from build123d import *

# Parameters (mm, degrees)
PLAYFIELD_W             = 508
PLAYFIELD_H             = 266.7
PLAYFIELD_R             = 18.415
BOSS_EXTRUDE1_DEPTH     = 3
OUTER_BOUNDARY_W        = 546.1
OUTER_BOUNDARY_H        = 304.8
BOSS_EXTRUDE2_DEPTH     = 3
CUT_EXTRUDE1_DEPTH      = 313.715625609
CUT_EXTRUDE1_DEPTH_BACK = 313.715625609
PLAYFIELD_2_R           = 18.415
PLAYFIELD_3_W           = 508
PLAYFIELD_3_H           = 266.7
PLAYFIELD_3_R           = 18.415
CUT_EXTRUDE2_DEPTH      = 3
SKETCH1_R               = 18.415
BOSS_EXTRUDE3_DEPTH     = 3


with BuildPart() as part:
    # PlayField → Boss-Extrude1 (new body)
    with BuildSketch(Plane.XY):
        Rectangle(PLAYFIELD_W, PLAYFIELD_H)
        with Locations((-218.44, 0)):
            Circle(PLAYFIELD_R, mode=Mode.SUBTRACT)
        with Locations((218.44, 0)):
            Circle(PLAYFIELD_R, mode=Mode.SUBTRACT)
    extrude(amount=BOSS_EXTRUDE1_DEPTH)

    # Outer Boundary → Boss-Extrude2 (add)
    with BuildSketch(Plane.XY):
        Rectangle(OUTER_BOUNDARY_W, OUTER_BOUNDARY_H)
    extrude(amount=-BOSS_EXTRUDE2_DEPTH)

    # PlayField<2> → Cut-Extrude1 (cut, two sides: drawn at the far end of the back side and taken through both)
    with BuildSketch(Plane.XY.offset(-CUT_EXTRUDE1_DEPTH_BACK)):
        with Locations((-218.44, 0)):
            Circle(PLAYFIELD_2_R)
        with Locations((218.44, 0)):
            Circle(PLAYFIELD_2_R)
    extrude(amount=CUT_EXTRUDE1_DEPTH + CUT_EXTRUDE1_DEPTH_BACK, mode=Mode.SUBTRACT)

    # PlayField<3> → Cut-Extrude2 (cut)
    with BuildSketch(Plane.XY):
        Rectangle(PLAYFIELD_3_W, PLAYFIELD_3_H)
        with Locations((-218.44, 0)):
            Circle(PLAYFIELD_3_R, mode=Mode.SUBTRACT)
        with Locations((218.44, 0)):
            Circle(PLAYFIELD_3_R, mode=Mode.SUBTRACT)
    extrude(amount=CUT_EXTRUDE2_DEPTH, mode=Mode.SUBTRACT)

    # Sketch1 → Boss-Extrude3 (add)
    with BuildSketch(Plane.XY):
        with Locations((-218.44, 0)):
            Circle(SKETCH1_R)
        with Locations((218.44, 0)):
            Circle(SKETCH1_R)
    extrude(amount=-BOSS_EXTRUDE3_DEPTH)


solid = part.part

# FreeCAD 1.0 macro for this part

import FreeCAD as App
import Part
import Sketcher
Q = App.Units.Quantity

doc = App.newDocument("Part")
params = doc.addObject("Spreadsheet::Sheet", "Params")
for row, (alias, value) in enumerate([
    ("sketch1_diameter", "1.45 in"),
    ("sketch1_width", "20 in"),
    ("sketch1_height", "10.5 in"),
    ("pad1_length", "3 mm"),
    ("sketch2_height", "12 in"),
    ("sketch2_width", "21.5 in"),
    ("pad2_length", "3 mm"),
    ("sketch3_diameter", "1.45 in"),
    ("sketch4_diameter", "1.45 in"),
    ("sketch4_width", "20 in"),
    ("sketch4_height", "10.5 in"),
    ("pocket2_length", "3 mm"),
    ("sketch5_diameter", "1.45 in"),
    ("pad3_length", "3 mm"),
], start=1):
    params.set(f"A{row}", alias)
    params.set(f"B{row}", "=" + value)
    params.setAlias(f"B{row}", alias)

body = doc.addObject("PartDesign::Body", "Body")

# Sketch on XY plane
sketch1 = body.newObject("Sketcher::SketchObject", "Sketch")
sketch1.AttachmentSupport = (doc.getObject("XY_Plane"), [""])
sketch1.MapMode = "FlatFace"
sketch1.addGeometry(Part.LineSegment(App.Vector(-254, 133, 0), App.Vector(-254, -133, 0)), False)
sketch1.addGeometry(Part.LineSegment(App.Vector(-254, -133, 0), App.Vector(254, -133, 0)), False)
sketch1.addGeometry(Part.LineSegment(App.Vector(254, -133, 0), App.Vector(254, 133, 0)), False)
sketch1.addGeometry(Part.LineSegment(App.Vector(254, 133, 0), App.Vector(-254, 133, 0)), False)
sketch1.addGeometry(Part.Circle(App.Vector(-218, 0, 0), App.Vector(0, 0, 1), 18), False)
sketch1.addGeometry(Part.Circle(App.Vector(218, 0, 0), App.Vector(0, 0, 1), 18), False)
sketch1.addConstraint(Sketcher.Constraint("Coincident", 0, 2, 1, 1))
sketch1.addConstraint(Sketcher.Constraint("Coincident", 1, 2, 2, 1))
sketch1.addConstraint(Sketcher.Constraint("Coincident", 2, 2, 3, 1))
sketch1.addConstraint(Sketcher.Constraint("Coincident", 3, 2, 0, 1))
sketch1.addConstraint(Sketcher.Constraint("Vertical", 0))
sketch1.addConstraint(Sketcher.Constraint("Horizontal", 1))
sketch1.addConstraint(Sketcher.Constraint("Vertical", 2))
sketch1.addConstraint(Sketcher.Constraint("Horizontal", 3))
sketch1.addConstraint(Sketcher.Constraint("Equal", 4, 5))
sketch1.addConstraint(Sketcher.Constraint("Symmetric", 4, 3, 5, 3, -1, 1))
sketch1.addConstraint(Sketcher.Constraint("Symmetric", 0, 2, 2, 2, -1, 1))
sketch1.addConstraint(Sketcher.Constraint("PointOnObject", 4, 3, -1))
sketch1.addConstraint(Sketcher.Constraint("Diameter", 4, Q("1.45 in")))
sketch1.addConstraint(Sketcher.Constraint("DistanceX", 1, 1, 1, 2, Q("20 in")))
sketch1.addConstraint(Sketcher.Constraint("DistanceY", 0, 2, 0, 1, Q("10.5 in")))
sketch1.addConstraint(Sketcher.Constraint("DistanceX", 4, 3, -1, 1, Q("8.6 in")))
sketch1.setExpression("Constraints[12]", "Params.sketch1_diameter")
sketch1.setExpression("Constraints[13]", "Params.sketch1_width")
sketch1.setExpression("Constraints[14]", "Params.sketch1_height")
pad1 = body.newObject("PartDesign::Pad", "Pad")
pad1.Profile = sketch1
pad1.setExpression("Length", "Params.pad1_length")

# Sketch on XY plane
sketch2 = body.newObject("Sketcher::SketchObject", "Sketch001")
sketch2.AttachmentSupport = (doc.getObject("XY_Plane"), [""])
sketch2.MapMode = "FlatFace"
sketch2.addGeometry(Part.LineSegment(App.Vector(-273, 152, 0), App.Vector(-273, -152, 0)), False)
sketch2.addGeometry(Part.LineSegment(App.Vector(-273, -152, 0), App.Vector(273, -152, 0)), False)
sketch2.addGeometry(Part.LineSegment(App.Vector(273, -152, 0), App.Vector(273, 152, 0)), False)
sketch2.addGeometry(Part.LineSegment(App.Vector(273, 152, 0), App.Vector(-273, 152, 0)), False)
sketch2.addConstraint(Sketcher.Constraint("Coincident", 0, 2, 1, 1))
sketch2.addConstraint(Sketcher.Constraint("Coincident", 1, 2, 2, 1))
sketch2.addConstraint(Sketcher.Constraint("Coincident", 2, 2, 3, 1))
sketch2.addConstraint(Sketcher.Constraint("Coincident", 3, 2, 0, 1))
sketch2.addConstraint(Sketcher.Constraint("Vertical", 0))
sketch2.addConstraint(Sketcher.Constraint("Horizontal", 1))
sketch2.addConstraint(Sketcher.Constraint("Vertical", 2))
sketch2.addConstraint(Sketcher.Constraint("Horizontal", 3))
sketch2.addConstraint(Sketcher.Constraint("Symmetric", 0, 2, 2, 2, -1, 1))
sketch2.addConstraint(Sketcher.Constraint("DistanceY", 0, 2, 0, 1, Q("12 in")))
sketch2.addConstraint(Sketcher.Constraint("DistanceX", 1, 1, 1, 2, Q("21.5 in")))
sketch2.setExpression("Constraints[9]", "Params.sketch2_height")
sketch2.setExpression("Constraints[10]", "Params.sketch2_width")
pad2 = body.newObject("PartDesign::Pad", "Pad001")
pad2.Profile = sketch2
pad2.setExpression("Length", "Params.pad2_length")
pad2.Reversed = True

# Sketch on XY plane
sketch3 = body.newObject("Sketcher::SketchObject", "Sketch002")
sketch3.AttachmentSupport = (doc.getObject("XY_Plane"), [""])
sketch3.MapMode = "FlatFace"
sketch3.addGeometry(Part.Circle(App.Vector(-218, 0, 0), App.Vector(0, 0, 1), 18), False)
sketch3.addGeometry(Part.Circle(App.Vector(218, 0, 0), App.Vector(0, 0, 1), 18), False)
sketch3.addConstraint(Sketcher.Constraint("Equal", 0, 1))
sketch3.addConstraint(Sketcher.Constraint("Symmetric", 0, 3, 1, 3, -1, 1))
sketch3.addConstraint(Sketcher.Constraint("PointOnObject", 0, 3, -1))
sketch3.addConstraint(Sketcher.Constraint("Diameter", 0, Q("1.45 in")))
sketch3.addConstraint(Sketcher.Constraint("DistanceX", 0, 3, -1, 1, Q("8.6 in")))
sketch3.setExpression("Constraints[3]", "Params.sketch3_diameter")
pocket1 = body.newObject("PartDesign::Pocket", "Pocket")
pocket1.Profile = sketch3
pocket1.Type = "ThroughAll"
pocket1.Midplane = True

# Sketch on XY plane
sketch4 = body.newObject("Sketcher::SketchObject", "Sketch003")
sketch4.AttachmentSupport = (doc.getObject("XY_Plane"), [""])
sketch4.MapMode = "FlatFace"
sketch4.addGeometry(Part.LineSegment(App.Vector(-254, 133, 0), App.Vector(-254, -133, 0)), False)
sketch4.addGeometry(Part.LineSegment(App.Vector(-254, -133, 0), App.Vector(254, -133, 0)), False)
sketch4.addGeometry(Part.LineSegment(App.Vector(254, -133, 0), App.Vector(254, 133, 0)), False)
sketch4.addGeometry(Part.LineSegment(App.Vector(254, 133, 0), App.Vector(-254, 133, 0)), False)
sketch4.addGeometry(Part.Circle(App.Vector(-218, 0, 0), App.Vector(0, 0, 1), 18), False)
sketch4.addGeometry(Part.Circle(App.Vector(218, 0, 0), App.Vector(0, 0, 1), 18), False)
sketch4.addConstraint(Sketcher.Constraint("Coincident", 0, 2, 1, 1))
sketch4.addConstraint(Sketcher.Constraint("Coincident", 1, 2, 2, 1))
sketch4.addConstraint(Sketcher.Constraint("Coincident", 2, 2, 3, 1))
sketch4.addConstraint(Sketcher.Constraint("Coincident", 3, 2, 0, 1))
sketch4.addConstraint(Sketcher.Constraint("Vertical", 0))
sketch4.addConstraint(Sketcher.Constraint("Horizontal", 1))
sketch4.addConstraint(Sketcher.Constraint("Vertical", 2))
sketch4.addConstraint(Sketcher.Constraint("Horizontal", 3))
sketch4.addConstraint(Sketcher.Constraint("Equal", 4, 5))
sketch4.addConstraint(Sketcher.Constraint("Symmetric", 4, 3, 5, 3, -1, 1))
sketch4.addConstraint(Sketcher.Constraint("Symmetric", 0, 2, 2, 2, -1, 1))
sketch4.addConstraint(Sketcher.Constraint("PointOnObject", 4, 3, -1))
sketch4.addConstraint(Sketcher.Constraint("Diameter", 4, Q("1.45 in")))
sketch4.addConstraint(Sketcher.Constraint("DistanceX", 1, 1, 1, 2, Q("20 in")))
sketch4.addConstraint(Sketcher.Constraint("DistanceY", 0, 2, 0, 1, Q("10.5 in")))
sketch4.addConstraint(Sketcher.Constraint("DistanceX", 4, 3, -1, 1, Q("8.6 in")))
sketch4.setExpression("Constraints[12]", "Params.sketch4_diameter")
sketch4.setExpression("Constraints[13]", "Params.sketch4_width")
sketch4.setExpression("Constraints[14]", "Params.sketch4_height")
pocket2 = body.newObject("PartDesign::Pocket", "Pocket001")
pocket2.Profile = sketch4
pocket2.setExpression("Length", "Params.pocket2_length")
pocket2.Reversed = True

# Sketch on XY plane
sketch5 = body.newObject("Sketcher::SketchObject", "Sketch004")
sketch5.AttachmentSupport = (doc.getObject("XY_Plane"), [""])
sketch5.MapMode = "FlatFace"
sketch5.addGeometry(Part.Circle(App.Vector(-218, 0, 0), App.Vector(0, 0, 1), 18), False)
sketch5.addGeometry(Part.Circle(App.Vector(218, 0, 0), App.Vector(0, 0, 1), 18), False)
sketch5.addConstraint(Sketcher.Constraint("Equal", 0, 1))
sketch5.addConstraint(Sketcher.Constraint("Symmetric", 0, 3, 1, 3, -1, 1))
sketch5.addConstraint(Sketcher.Constraint("PointOnObject", 0, 3, -1))
sketch5.addConstraint(Sketcher.Constraint("Diameter", 0, Q("1.45 in")))
sketch5.addConstraint(Sketcher.Constraint("DistanceX", 0, 3, -1, 1, Q("8.6 in")))
sketch5.setExpression("Constraints[3]", "Params.sketch5_diameter")
pad3 = body.newObject("PartDesign::Pad", "Pad002")
pad3.Profile = sketch5
pad3.setExpression("Length", "Params.pad3_length")
pad3.Reversed = True

doc.recompute()
